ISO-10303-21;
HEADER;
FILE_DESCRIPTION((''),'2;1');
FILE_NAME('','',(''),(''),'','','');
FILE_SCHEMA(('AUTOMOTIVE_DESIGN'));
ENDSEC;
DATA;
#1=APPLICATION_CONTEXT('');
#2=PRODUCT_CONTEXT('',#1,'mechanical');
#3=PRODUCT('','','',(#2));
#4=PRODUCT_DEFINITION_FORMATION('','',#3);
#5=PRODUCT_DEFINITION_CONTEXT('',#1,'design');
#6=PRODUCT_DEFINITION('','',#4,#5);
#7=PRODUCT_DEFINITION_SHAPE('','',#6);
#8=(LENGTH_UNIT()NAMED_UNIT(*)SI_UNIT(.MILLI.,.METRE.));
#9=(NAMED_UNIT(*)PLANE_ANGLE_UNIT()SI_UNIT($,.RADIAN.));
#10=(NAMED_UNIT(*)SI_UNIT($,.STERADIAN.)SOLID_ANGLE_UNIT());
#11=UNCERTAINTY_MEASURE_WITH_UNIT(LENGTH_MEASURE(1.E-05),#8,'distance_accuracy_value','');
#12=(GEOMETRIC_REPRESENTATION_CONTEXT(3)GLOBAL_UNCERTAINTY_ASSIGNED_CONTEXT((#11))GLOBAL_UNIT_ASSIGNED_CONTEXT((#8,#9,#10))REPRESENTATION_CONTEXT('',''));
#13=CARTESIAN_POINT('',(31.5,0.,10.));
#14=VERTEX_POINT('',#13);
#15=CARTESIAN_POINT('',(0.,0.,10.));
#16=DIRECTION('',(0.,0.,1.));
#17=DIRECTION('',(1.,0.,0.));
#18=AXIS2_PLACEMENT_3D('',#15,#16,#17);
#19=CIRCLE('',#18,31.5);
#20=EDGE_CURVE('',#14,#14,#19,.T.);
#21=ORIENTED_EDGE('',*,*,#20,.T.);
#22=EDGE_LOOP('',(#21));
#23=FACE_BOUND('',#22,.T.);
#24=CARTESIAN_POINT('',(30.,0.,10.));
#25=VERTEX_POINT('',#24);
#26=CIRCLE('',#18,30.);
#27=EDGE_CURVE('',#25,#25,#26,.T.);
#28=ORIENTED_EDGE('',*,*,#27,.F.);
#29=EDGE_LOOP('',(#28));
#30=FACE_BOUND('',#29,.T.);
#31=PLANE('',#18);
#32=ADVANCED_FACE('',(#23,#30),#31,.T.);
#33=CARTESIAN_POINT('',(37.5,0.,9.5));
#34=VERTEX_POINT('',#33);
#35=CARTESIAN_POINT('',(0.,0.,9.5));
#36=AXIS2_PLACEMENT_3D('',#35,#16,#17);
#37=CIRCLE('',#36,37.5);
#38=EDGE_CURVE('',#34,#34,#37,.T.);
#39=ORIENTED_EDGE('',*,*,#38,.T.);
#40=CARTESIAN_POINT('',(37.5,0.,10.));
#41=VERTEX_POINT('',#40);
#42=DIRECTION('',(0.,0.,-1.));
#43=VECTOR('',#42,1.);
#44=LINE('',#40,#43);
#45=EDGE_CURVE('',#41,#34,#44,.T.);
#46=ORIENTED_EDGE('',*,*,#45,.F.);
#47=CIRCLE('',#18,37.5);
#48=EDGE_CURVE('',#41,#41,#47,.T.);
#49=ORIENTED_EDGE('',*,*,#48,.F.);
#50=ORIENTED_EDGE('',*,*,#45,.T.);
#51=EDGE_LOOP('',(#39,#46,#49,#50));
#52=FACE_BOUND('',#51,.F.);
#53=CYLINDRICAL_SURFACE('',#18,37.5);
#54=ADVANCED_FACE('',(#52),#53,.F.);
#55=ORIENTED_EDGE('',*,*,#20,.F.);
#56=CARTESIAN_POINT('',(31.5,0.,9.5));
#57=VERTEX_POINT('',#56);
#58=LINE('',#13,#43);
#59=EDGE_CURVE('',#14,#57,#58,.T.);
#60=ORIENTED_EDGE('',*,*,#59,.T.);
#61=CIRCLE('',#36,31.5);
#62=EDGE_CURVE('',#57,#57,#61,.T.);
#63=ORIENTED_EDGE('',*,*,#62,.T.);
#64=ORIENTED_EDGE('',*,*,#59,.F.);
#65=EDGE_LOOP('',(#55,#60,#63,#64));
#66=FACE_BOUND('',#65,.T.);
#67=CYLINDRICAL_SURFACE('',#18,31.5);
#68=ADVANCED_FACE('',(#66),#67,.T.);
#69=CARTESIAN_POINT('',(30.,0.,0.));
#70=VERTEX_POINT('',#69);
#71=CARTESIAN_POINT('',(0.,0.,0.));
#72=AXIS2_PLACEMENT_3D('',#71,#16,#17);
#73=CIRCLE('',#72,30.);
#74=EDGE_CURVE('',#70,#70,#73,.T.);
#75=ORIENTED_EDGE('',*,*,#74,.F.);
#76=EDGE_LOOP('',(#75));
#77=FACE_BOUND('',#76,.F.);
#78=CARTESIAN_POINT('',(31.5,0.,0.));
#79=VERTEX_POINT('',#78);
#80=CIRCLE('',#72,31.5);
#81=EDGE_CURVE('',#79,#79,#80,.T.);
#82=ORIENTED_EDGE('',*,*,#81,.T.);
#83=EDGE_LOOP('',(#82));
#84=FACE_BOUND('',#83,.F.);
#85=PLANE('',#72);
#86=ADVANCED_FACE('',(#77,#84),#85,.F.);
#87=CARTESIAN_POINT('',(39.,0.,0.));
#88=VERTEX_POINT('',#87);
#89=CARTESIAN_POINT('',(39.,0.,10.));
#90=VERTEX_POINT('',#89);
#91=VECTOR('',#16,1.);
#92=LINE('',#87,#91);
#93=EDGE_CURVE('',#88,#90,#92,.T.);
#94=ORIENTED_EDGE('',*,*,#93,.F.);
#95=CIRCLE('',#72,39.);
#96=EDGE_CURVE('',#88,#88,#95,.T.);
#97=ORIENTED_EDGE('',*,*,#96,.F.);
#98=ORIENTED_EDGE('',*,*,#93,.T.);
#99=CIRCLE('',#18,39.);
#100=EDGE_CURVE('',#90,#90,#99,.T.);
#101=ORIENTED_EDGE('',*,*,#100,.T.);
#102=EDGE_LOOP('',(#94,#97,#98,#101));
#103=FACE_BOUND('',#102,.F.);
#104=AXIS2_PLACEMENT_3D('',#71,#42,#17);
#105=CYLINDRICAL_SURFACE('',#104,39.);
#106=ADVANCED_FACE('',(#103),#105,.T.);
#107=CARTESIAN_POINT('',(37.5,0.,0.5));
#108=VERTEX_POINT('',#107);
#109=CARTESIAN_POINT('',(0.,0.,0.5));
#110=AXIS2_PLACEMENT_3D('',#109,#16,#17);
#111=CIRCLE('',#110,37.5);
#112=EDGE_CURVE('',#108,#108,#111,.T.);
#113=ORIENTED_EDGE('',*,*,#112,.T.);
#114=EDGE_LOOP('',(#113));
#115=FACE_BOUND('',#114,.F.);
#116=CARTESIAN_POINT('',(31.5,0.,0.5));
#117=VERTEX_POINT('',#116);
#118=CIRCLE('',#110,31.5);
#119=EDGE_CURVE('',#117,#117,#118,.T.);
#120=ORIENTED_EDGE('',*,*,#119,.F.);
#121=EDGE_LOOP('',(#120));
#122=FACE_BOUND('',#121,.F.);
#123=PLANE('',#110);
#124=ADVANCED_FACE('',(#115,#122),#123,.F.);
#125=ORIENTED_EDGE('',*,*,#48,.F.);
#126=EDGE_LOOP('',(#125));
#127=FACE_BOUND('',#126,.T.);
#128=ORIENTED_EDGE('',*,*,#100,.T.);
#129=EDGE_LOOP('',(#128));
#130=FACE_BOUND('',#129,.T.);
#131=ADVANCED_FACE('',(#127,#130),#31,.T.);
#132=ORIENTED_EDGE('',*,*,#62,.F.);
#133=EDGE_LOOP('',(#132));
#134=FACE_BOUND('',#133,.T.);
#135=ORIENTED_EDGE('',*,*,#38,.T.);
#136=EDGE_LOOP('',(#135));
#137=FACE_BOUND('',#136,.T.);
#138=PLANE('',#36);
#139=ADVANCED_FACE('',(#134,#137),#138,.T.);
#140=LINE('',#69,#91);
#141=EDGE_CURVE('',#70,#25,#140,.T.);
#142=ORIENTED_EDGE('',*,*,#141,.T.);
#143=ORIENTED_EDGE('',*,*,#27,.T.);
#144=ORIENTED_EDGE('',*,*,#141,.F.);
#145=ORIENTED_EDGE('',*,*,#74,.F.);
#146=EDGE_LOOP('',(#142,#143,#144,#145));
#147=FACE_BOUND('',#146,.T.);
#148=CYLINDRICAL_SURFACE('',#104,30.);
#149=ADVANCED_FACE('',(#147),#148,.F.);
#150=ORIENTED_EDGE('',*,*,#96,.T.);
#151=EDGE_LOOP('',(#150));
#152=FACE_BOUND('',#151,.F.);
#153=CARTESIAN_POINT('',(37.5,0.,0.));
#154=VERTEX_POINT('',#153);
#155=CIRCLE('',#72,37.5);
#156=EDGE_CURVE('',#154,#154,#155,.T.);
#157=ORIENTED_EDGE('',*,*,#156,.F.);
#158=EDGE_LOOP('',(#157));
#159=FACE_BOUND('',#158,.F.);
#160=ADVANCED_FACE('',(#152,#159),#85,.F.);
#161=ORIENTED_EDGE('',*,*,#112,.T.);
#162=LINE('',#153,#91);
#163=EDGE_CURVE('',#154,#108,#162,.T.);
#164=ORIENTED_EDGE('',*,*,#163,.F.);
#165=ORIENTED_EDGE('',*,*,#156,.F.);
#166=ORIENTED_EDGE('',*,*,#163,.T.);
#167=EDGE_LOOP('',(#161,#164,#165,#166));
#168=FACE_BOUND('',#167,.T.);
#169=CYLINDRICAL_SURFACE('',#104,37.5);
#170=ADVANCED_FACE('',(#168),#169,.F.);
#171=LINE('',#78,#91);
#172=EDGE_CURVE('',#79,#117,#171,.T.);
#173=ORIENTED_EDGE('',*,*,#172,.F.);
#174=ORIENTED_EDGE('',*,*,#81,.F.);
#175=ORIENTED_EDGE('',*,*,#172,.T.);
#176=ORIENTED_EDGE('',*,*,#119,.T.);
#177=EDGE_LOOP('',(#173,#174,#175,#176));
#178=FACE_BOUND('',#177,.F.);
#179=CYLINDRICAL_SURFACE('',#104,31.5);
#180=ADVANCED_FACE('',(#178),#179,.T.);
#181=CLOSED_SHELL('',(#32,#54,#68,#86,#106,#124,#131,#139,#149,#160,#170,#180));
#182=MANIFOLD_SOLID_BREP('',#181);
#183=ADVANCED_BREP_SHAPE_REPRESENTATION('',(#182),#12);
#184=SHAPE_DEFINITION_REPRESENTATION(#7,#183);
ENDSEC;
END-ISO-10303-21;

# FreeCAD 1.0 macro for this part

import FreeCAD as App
import Part
import Sketcher

V = App.Vector

doc = App.newDocument("Part")
body = doc.addObject("PartDesign::Body", "Body")

# Sketch on XY plane
sketch1 = body.newObject("Sketcher::SketchObject", "Sketch")
sketch1.AttachmentSupport = (doc.getObject("XY_Plane"), [""])
sketch1.MapMode = "FlatFace"
sketch1.addGeometry(Part.Circle(V(0, 0, 0), V(0, 0, 1), 39), False)
sketch1.addGeometry(Part.Circle(V(0, 0, 0), V(0, 0, 1), 30), False)
sketch1.addConstraint(Sketcher.Constraint("Coincident", 0, 3, -1, 1))
sketch1.addConstraint(Sketcher.Constraint("Coincident", 1, 3, -1, 1))
sketch1.addConstraint(Sketcher.Constraint("Diameter", 0, 78.0))
sketch1.addConstraint(Sketcher.Constraint("Diameter", 1, 60.0))
pad1 = body.newObject("PartDesign::Pad", "Pad")
pad1.Profile = sketch1
pad1.Length = 10

# Sketch on XY plane
sketch2 = body.newObject("Sketcher::SketchObject", "Sketch001")
sketch2.AttachmentSupport = (doc.getObject("XY_Plane"), [""])
sketch2.MapMode = "FlatFace"
sketch2.AttachmentOffset = App.Placement(V(0, 0, 10), App.Rotation())
sketch2.addGeometry(Part.Circle(V(0, 0, 0), V(0, 0, 1), 37.5), False)
sketch2.addGeometry(Part.Circle(V(0, 0, 0), V(0, 0, 1), 31.5), False)
sketch2.addConstraint(Sketcher.Constraint("Coincident", 0, 3, -1, 1))
sketch2.addConstraint(Sketcher.Constraint("Coincident", 1, 3, -1, 1))
sketch2.addConstraint(Sketcher.Constraint("Diameter", 0, 75.0))
sketch2.addConstraint(Sketcher.Constraint("Diameter", 1, 63.0))
pocket1 = body.newObject("PartDesign::Pocket", "Pocket")
pocket1.Profile = sketch2
pocket1.Length = 0.5

# Sketch on XY plane
sketch3 = body.newObject("Sketcher::SketchObject", "Sketch002")
sketch3.AttachmentSupport = (doc.getObject("XY_Plane"), [""])
sketch3.MapMode = "FlatFace"
sketch3.addGeometry(Part.Circle(V(0, 0, 0), V(0, 0, 1), 37.5), False)
sketch3.addGeometry(Part.Circle(V(0, 0, 0), V(0, 0, 1), 31.5), False)
sketch3.addConstraint(Sketcher.Constraint("Coincident", 0, 3, -1, 1))
sketch3.addConstraint(Sketcher.Constraint("Coincident", 1, 3, -1, 1))
sketch3.addConstraint(Sketcher.Constraint("Diameter", 0, 75.0))
sketch3.addConstraint(Sketcher.Constraint("Diameter", 1, 63.0))
pocket2 = body.newObject("PartDesign::Pocket", "Pocket001")
pocket2.Profile = sketch3
pocket2.Length = 0.5
pocket2.Reversed = True

doc.recompute()
